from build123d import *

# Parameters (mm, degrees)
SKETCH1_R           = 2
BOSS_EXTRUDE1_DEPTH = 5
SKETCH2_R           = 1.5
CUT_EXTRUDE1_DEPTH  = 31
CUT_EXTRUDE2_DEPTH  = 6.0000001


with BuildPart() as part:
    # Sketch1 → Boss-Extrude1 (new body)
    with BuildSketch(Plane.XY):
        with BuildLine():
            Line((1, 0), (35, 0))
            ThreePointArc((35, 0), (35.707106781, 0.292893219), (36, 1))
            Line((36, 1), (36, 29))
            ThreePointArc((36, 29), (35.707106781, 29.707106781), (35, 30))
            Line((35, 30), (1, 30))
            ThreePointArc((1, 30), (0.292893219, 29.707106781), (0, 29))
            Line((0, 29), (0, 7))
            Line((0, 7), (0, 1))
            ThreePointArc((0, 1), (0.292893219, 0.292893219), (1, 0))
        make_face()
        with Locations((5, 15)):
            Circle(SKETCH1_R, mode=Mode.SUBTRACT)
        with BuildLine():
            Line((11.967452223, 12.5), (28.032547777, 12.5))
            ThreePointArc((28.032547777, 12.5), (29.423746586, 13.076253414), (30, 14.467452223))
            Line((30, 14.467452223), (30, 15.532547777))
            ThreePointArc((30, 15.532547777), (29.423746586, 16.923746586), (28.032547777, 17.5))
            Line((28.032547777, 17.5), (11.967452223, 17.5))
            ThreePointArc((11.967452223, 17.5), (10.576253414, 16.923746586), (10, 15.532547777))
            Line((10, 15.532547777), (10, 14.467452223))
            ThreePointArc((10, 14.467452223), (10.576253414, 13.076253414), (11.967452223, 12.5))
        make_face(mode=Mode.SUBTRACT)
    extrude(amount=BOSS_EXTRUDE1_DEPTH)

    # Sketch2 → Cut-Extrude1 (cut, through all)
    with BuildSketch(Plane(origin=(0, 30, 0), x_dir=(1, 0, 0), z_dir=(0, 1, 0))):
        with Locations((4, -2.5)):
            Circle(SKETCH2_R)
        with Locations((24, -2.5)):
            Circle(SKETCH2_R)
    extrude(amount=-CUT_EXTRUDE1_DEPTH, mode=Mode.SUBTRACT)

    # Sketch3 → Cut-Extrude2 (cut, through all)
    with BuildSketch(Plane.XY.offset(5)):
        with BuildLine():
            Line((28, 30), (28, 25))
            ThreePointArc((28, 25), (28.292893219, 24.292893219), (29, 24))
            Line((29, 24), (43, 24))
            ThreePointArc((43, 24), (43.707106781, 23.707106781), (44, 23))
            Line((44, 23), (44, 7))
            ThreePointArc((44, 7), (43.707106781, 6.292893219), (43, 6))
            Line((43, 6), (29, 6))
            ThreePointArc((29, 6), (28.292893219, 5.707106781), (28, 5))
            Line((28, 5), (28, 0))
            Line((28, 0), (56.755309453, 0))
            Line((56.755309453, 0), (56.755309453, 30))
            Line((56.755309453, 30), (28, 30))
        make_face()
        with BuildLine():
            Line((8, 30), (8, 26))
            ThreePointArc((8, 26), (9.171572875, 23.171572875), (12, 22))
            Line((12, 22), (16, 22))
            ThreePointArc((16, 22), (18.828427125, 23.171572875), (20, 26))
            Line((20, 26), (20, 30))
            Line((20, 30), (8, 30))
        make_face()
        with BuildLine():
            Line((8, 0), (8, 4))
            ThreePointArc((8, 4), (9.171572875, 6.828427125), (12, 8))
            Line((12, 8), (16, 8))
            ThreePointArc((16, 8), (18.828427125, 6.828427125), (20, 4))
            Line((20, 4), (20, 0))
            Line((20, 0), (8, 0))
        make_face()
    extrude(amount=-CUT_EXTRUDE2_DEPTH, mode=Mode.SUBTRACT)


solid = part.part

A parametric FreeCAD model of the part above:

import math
import FreeCAD as App
import Part
import Sketcher
from FreeCAD import Vector
Q = App.Units.Quantity

doc = App.newDocument("Part")
body = doc.addObject("PartDesign::Body", "Body")

sketch1 = doc.addObject("Sketcher::SketchObject", "Sketch")
body.addObject(sketch1)
sketch1.AttachmentSupport = (doc.XY_Plane, [""])
sketch1.MapMode = "FlatFace"
sketch1.addGeometry(Part.LineSegment(Vector(1, 0, 0), Vector(35, 0, 0)), False)
sketch1.addGeometry(Part.ArcOfCircle(Part.Circle(Vector(35, 1, 0), Vector(0, 0, 1), 1), math.radians(-90), math.radians(0)), False)
sketch1.addGeometry(Part.LineSegment(Vector(36, 1, 0), Vector(36, 29, 0)), False)
sketch1.addGeometry(Part.ArcOfCircle(Part.Circle(Vector(35, 29, 0), Vector(0, 0, 1), 1), math.radians(0), math.radians(90)), False)
sketch1.addGeometry(Part.LineSegment(Vector(35, 30, 0), Vector(1, 30, 0)), False)
sketch1.addGeometry(Part.ArcOfCircle(Part.Circle(Vector(1, 29, 0), Vector(0, 0, 1), 1), math.radians(90), math.radians(180)), False)
sketch1.addGeometry(Part.LineSegment(Vector(0, 29, 0), Vector(0, 1, 0)), False)
sketch1.addGeometry(Part.ArcOfCircle(Part.Circle(Vector(1, 1, 0), Vector(0, 0, 1), 1), math.radians(-180), math.radians(-90)), False)
sketch1.addGeometry(Part.Circle(Vector(5, 15, 0), Vector(0, 0, 1), 2), False)
sketch1.addGeometry(Part.LineSegment(Vector(28, 12.5, 0), Vector(12, 12.5, 0)), False)
sketch1.addGeometry(Part.ArcOfCircle(Part.Circle(Vector(12, 14.5, 0), Vector(0, 0, 1), 2), math.radians(180), math.radians(270)), False)
sketch1.addGeometry(Part.LineSegment(Vector(10, 14.5, 0), Vector(10, 15.5, 0)), False)
sketch1.addGeometry(Part.ArcOfCircle(Part.Circle(Vector(12, 15.5, 0), Vector(0, 0, 1), 2), math.radians(90), math.radians(180)), False)
sketch1.addGeometry(Part.LineSegment(Vector(12, 17.5, 0), Vector(28, 17.5, 0)), False)
sketch1.addGeometry(Part.ArcOfCircle(Part.Circle(Vector(28, 15.5, 0), Vector(0, 0, 1), 2), math.radians(0), math.radians(90)), False)
sketch1.addGeometry(Part.LineSegment(Vector(30, 15.5, 0), Vector(30, 14.5, 0)), False)
sketch1.addGeometry(Part.ArcOfCircle(Part.Circle(Vector(28, 14.5, 0), Vector(0, 0, 1), 2), math.radians(-90), math.radians(0)), False)
sketch1.addConstraint(Sketcher.Constraint("Tangent", 0, 2, 1, 1))
sketch1.addConstraint(Sketcher.Constraint("Tangent", 1, 2, 2, 1))
sketch1.addConstraint(Sketcher.Constraint("Tangent", 2, 2, 3, 1))
sketch1.addConstraint(Sketcher.Constraint("Tangent", 3, 2, 4, 1))
sketch1.addConstraint(Sketcher.Constraint("Tangent", 4, 2, 5, 1))
sketch1.addConstraint(Sketcher.Constraint("Tangent", 5, 2, 6, 1))
sketch1.addConstraint(Sketcher.Constraint("Tangent", 6, 2, 7, 1))
sketch1.addConstraint(Sketcher.Constraint("Tangent", 7, 2, 0, 1))
sketch1.addConstraint(Sketcher.Constraint("Tangent", 9, 2, 10, 2))
sketch1.addConstraint(Sketcher.Constraint("Tangent", 10, 1, 11, 1))
sketch1.addConstraint(Sketcher.Constraint("Tangent", 11, 2, 12, 2))
sketch1.addConstraint(Sketcher.Constraint("Tangent", 12, 1, 13, 1))
sketch1.addConstraint(Sketcher.Constraint("Tangent", 13, 2, 14, 2))
sketch1.addConstraint(Sketcher.Constraint("Tangent", 14, 1, 15, 1))
sketch1.addConstraint(Sketcher.Constraint("Tangent", 15, 2, 16, 2))
sketch1.addConstraint(Sketcher.Constraint("Tangent", 16, 1, 9, 1))
sketch1.addConstraint(Sketcher.Constraint("Horizontal", 0))
sketch1.addConstraint(Sketcher.Constraint("Vertical", 2))
sketch1.addConstraint(Sketcher.Constraint("Horizontal", 4))
sketch1.addConstraint(Sketcher.Constraint("Vertical", 6))
sketch1.addConstraint(Sketcher.Constraint("Horizontal", 9))
sketch1.addConstraint(Sketcher.Constraint("Vertical", 11))
sketch1.addConstraint(Sketcher.Constraint("Horizontal", 13))
sketch1.addConstraint(Sketcher.Constraint("Vertical", 15))
sketch1.addConstraint(Sketcher.Constraint("Equal", 1, 3))
sketch1.addConstraint(Sketcher.Constraint("Equal", 3, 5))
sketch1.addConstraint(Sketcher.Constraint("Equal", 5, 7))
sketch1.addConstraint(Sketcher.Constraint("Equal", 10, 12))
sketch1.addConstraint(Sketcher.Constraint("Equal", 12, 14))
sketch1.addConstraint(Sketcher.Constraint("Equal", 14, 16))
sketch1.addConstraint(Sketcher.Constraint("PointOnObject", 0, 2, -1))
sketch1.addConstraint(Sketcher.Constraint("PointOnObject", 5, 2, -2))
sketch1.addConstraint(Sketcher.Constraint("Diameter", 8, Q("4 mm")))
sketch1.addConstraint(Sketcher.Constraint("Radius", 1, Q("1 mm")))
sketch1.addConstraint(Sketcher.Constraint("DistanceX", 0, 1, 0, 2, Q("34 mm")))
sketch1.addConstraint(Sketcher.Constraint("DistanceY", 2, 1, 2, 2, Q("28 mm")))
sketch1.addConstraint(Sketcher.Constraint("DistanceX", -1, 1, 8, 3, Q("5 mm")))
sketch1.addConstraint(Sketcher.Constraint("DistanceY", -1, 1, 8, 3, Q("15 mm")))
sketch1.addConstraint(Sketcher.Constraint("DistanceX", -1, 1, 10, 1, Q("10 mm")))
sketch1.addConstraint(Sketcher.Constraint("DistanceX", -1, 1, 14, 1, Q("30 mm")))
sketch1.addConstraint(Sketcher.Constraint("DistanceY", 9, 2, 12, 1, Q("5 mm")))
sketch1.addConstraint(Sketcher.Constraint("DistanceY", -1, 1, 9, 2, Q("12.5 mm")))
sketch1.addConstraint(Sketcher.Constraint("Radius", 10, Q("1.967452 mm")))
pad1 = doc.addObject("PartDesign::Pad", "Pad")
body.addObject(pad1)
pad1.Profile = sketch1
pad1.Length = 5

sketch2 = doc.addObject("Sketcher::SketchObject", "Sketch001")
body.addObject(sketch2)
sketch2.AttachmentSupport = (doc.XZ_Plane, [""])
sketch2.MapMode = "FlatFace"
sketch2.AttachmentOffset = App.Placement(Vector(0, 0, -30), App.Rotation())
sketch2.addGeometry(Part.Circle(Vector(4, 2.5, 0), Vector(0, 0, 1), 1.5), False)
sketch2.addGeometry(Part.Circle(Vector(24, 2.5, 0), Vector(0, 0, 1), 1.5), False)
sketch2.addConstraint(Sketcher.Constraint("Equal", 0, 1))
sketch2.addConstraint(Sketcher.Constraint("Horizontal", 0, 3, 1, 3))
sketch2.addConstraint(Sketcher.Constraint("Diameter", 0, Q("3 mm")))
sketch2.addConstraint(Sketcher.Constraint("DistanceX", -1, 1, 0, 3, Q("4 mm")))
sketch2.addConstraint(Sketcher.Constraint("DistanceX", -1, 1, 1, 3, Q("24 mm")))
sketch2.addConstraint(Sketcher.Constraint("DistanceY", -1, 1, 0, 3, Q("2.5 mm")))
pocket1 = doc.addObject("PartDesign::Pocket", "Pocket")
body.addObject(pocket1)
pocket1.Profile = sketch2
pocket1.Type = "ThroughAll"
pocket1.Reversed = True

sketch3 = doc.addObject("Sketcher::SketchObject", "Sketch002")
body.addObject(sketch3)
sketch3.AttachmentSupport = (doc.XY_Plane, [""])
sketch3.MapMode = "FlatFace"
sketch3.AttachmentOffset = App.Placement(Vector(0, 0, 5), App.Rotation())
sketch3.addGeometry(Part.LineSegment(Vector(28, 30, 0), Vector(28, 25, 0)), False)
sketch3.addGeometry(Part.ArcOfCircle(Part.Circle(Vector(29, 25, 0), Vector(0, 0, 1), 1), math.radians(-180), math.radians(-90)), False)
sketch3.addGeometry(Part.LineSegment(Vector(29, 24, 0), Vector(43, 24, 0)), False)
sketch3.addGeometry(Part.ArcOfCircle(Part.Circle(Vector(43, 23, 0), Vector(0, 0, 1), 1), math.radians(0), math.radians(90)), False)
sketch3.addGeometry(Part.LineSegment(Vector(44, 23, 0), Vector(44, 7, 0)), False)
sketch3.addGeometry(Part.ArcOfCircle(Part.Circle(Vector(43, 7, 0), Vector(0, 0, 1), 1), math.radians(-90), math.radians(0)), False)
sketch3.addGeometry(Part.LineSegment(Vector(43, 6, 0), Vector(29, 6, 0)), False)
sketch3.addGeometry(Part.ArcOfCircle(Part.Circle(Vector(29, 5, 0), Vector(0, 0, 1), 1), math.radians(90), math.radians(180)), False)
sketch3.addGeometry(Part.LineSegment(Vector(28, 5, 0), Vector(28, 0, 0)), False)
sketch3.addGeometry(Part.LineSegment(Vector(28, 0, 0), Vector(56.8, 0, 0)), False)
sketch3.addGeometry(Part.LineSegment(Vector(56.8, 0, 0), Vector(56.8, 30, 0)), False)
sketch3.addGeometry(Part.LineSegment(Vector(56.8, 30, 0), Vector(28, 30, 0)), False)
sketch3.addGeometry(Part.LineSegment(Vector(8, 30, 0), Vector(8, 26, 0)), False)
sketch3.addGeometry(Part.ArcOfCircle(Part.Circle(Vector(12, 26, 0), Vector(0, 0, 1), 4), math.radians(180), math.radians(270)), False)
sketch3.addGeometry(Part.LineSegment(Vector(12, 22, 0), Vector(16, 22, 0)), False)
sketch3.addGeometry(Part.ArcOfCircle(Part.Circle(Vector(16, 26, 0), Vector(0, 0, 1), 4), math.radians(-90), math.radians(0)), False)
sketch3.addGeometry(Part.LineSegment(Vector(20, 26, 0), Vector(20, 30, 0)), False)
sketch3.addGeometry(Part.LineSegment(Vector(20, 30, 0), Vector(8, 30, 0)), False)
sketch3.addGeometry(Part.LineSegment(Vector(8, 4, 0), Vector(8, 0, 0)), False)
sketch3.addGeometry(Part.LineSegment(Vector(8, 0, 0), Vector(20, 0, 0)), False)
sketch3.addGeometry(Part.LineSegment(Vector(20, 0, 0), Vector(20, 4, 0)), False)
sketch3.addGeometry(Part.ArcOfCircle(Part.Circle(Vector(16, 4, 0), Vector(0, 0, 1), 4), math.radians(0), math.radians(90)), False)
sketch3.addGeometry(Part.LineSegment(Vector(16, 8, 0), Vector(12, 8, 0)), False)
sketch3.addGeometry(Part.ArcOfCircle(Part.Circle(Vector(12, 4, 0), Vector(0, 0, 1), 4), math.radians(90), math.radians(180)), False)
sketch3.addConstraint(Sketcher.Constraint("Tangent", 0, 2, 1, 1))
sketch3.addConstraint(Sketcher.Constraint("Tangent", 1, 2, 2, 1))
sketch3.addConstraint(Sketcher.Constraint("Tangent", 2, 2, 3, 2))
sketch3.addConstraint(Sketcher.Constraint("Tangent", 3, 1, 4, 1))
sketch3.addConstraint(Sketcher.Constraint("Tangent", 4, 2, 5, 2))
sketch3.addConstraint(Sketcher.Constraint("Tangent", 5, 1, 6, 1))
sketch3.addConstraint(Sketcher.Constraint("Tangent", 6, 2, 7, 1))
sketch3.addConstraint(Sketcher.Constraint("Tangent", 7, 2, 8, 1))
sketch3.addConstraint(Sketcher.Constraint("Coincident", 8, 2, 9, 1))
sketch3.addConstraint(Sketcher.Constraint("Coincident", 9, 2, 10, 1))
sketch3.addConstraint(Sketcher.Constraint("Coincident", 10, 2, 11, 1))
sketch3.addConstraint(Sketcher.Constraint("Coincident", 11, 2, 0, 1))
sketch3.addConstraint(Sketcher.Constraint("Tangent", 12, 2, 13, 1))
sketch3.addConstraint(Sketcher.Constraint("Tangent", 13, 2, 14, 1))
sketch3.addConstraint(Sketcher.Constraint("Tangent", 14, 2, 15, 1))
sketch3.addConstraint(Sketcher.Constraint("Tangent", 15, 2, 16, 1))
sketch3.addConstraint(Sketcher.Constraint("Coincident", 16, 2, 17, 1))
sketch3.addConstraint(Sketcher.Constraint("Coincident", 17, 2, 12, 1))
sketch3.addConstraint(Sketcher.Constraint("Coincident", 18, 2, 19, 1))
sketch3.addConstraint(Sketcher.Constraint("Coincident", 19, 2, 20, 1))
sketch3.addConstraint(Sketcher.Constraint("Tangent", 20, 2, 21, 1))
sketch3.addConstraint(Sketcher.Constraint("Tangent", 21, 2, 22, 1))
sketch3.addConstraint(Sketcher.Constraint("Tangent", 22, 2, 23, 1))
sketch3.addConstraint(Sketcher.Constraint("Tangent", 23, 2, 18, 1))
sketch3.addConstraint(Sketcher.Constraint("Vertical", 0))
sketch3.addConstraint(Sketcher.Constraint("Horizontal", 2))
sketch3.addConstraint(Sketcher.Constraint("Vertical", 4))
sketch3.addConstraint(Sketcher.Constraint("Horizontal", 6))
sketch3.addConstraint(Sketcher.Constraint("Vertical", 8))
sketch3.addConstraint(Sketcher.Constraint("Horizontal", 9))
sketch3.addConstraint(Sketcher.Constraint("Vertical", 10))
sketch3.addConstraint(Sketcher.Constraint("Horizontal", 11))
sketch3.addConstraint(Sketcher.Constraint("Vertical", 12))
sketch3.addConstraint(Sketcher.Constraint("Horizontal", 14))
sketch3.addConstraint(Sketcher.Constraint("Vertical", 16))
sketch3.addConstraint(Sketcher.Constraint("Horizontal", 17))
sketch3.addConstraint(Sketcher.Constraint("Vertical", 18))
sketch3.addConstraint(Sketcher.Constraint("Horizontal", 19))
sketch3.addConstraint(Sketcher.Constraint("Vertical", 20))
sketch3.addConstraint(Sketcher.Constraint("Horizontal", 22))
sketch3.addConstraint(Sketcher.Constraint("Equal", 1, 3))
sketch3.addConstraint(Sketcher.Constraint("Equal", 3, 5))
sketch3.addConstraint(Sketcher.Constraint("Equal", 5, 7))
sketch3.addConstraint(Sketcher.Constraint("Equal", 13, 15))
sketch3.addConstraint(Sketcher.Constraint("Equal", 15, 21))
sketch3.addConstraint(Sketcher.Constraint("Equal", 21, 23))
sketch3.addConstraint(Sketcher.Constraint("PointOnObject", 8, 2, -1))
sketch3.addConstraint(Sketcher.Constraint("PointOnObject", 18, 2, -1))
sketch3.addConstraint(Sketcher.Constraint("Horizontal", 11, 2, 16, 2))
sketch3.addConstraint(Sketcher.Constraint("Vertical", 1, 3, 7, 3))
sketch3.addConstraint(Sketcher.Constraint("Vertical", 15, 3, 21, 3))
sketch3.addConstraint(Sketcher.Constraint("Vertical", 13, 3, 23, 3))
sketch3.addConstraint(Sketcher.Constraint("Equal", 0, 8))
sketch3.addConstraint(Sketcher.Constraint("Equal", 22, 12))
sketch3.addConstraint(Sketcher.Constraint("Equal", 16, 18))
sketch3.addConstraint(Sketcher.Constraint("Radius", 1, Q("1 mm")))
sketch3.addConstraint(Sketcher.Constraint("Radius", 13, Q("4 mm")))
sketch3.addConstraint(Sketcher.Constraint("DistanceX", 2, 1, 2, 2, Q("14 mm")))
sketch3.addConstraint(Sketcher.Constraint("DistanceX", 14, 1, 14, 2, Q("4 mm")))
sketch3.addConstraint(Sketcher.Constraint("DistanceY", 0, 2, 0, 1, Q("5 mm")))
sketch3.addConstraint(Sketcher.Constraint("DistanceY", 4, 2, 4, 1, Q("16 mm")))
sketch3.addConstraint(Sketcher.Constraint("DistanceX", -1, 1, 1, 3, Q("29 mm")))
sketch3.addConstraint(Sketcher.Constraint("DistanceX", -1, 1, 13, 3, Q("12 mm")))
sketch3.addConstraint(Sketcher.Constraint("DistanceX", 9, 1, 9, 2, Q("28.755309 mm")))
pocket2 = doc.addObject("PartDesign::Pocket", "Pocket001")
body.addObject(pocket2)
pocket2.Profile = sketch3
pocket2.Type = "ThroughAll"

doc.recompute()
